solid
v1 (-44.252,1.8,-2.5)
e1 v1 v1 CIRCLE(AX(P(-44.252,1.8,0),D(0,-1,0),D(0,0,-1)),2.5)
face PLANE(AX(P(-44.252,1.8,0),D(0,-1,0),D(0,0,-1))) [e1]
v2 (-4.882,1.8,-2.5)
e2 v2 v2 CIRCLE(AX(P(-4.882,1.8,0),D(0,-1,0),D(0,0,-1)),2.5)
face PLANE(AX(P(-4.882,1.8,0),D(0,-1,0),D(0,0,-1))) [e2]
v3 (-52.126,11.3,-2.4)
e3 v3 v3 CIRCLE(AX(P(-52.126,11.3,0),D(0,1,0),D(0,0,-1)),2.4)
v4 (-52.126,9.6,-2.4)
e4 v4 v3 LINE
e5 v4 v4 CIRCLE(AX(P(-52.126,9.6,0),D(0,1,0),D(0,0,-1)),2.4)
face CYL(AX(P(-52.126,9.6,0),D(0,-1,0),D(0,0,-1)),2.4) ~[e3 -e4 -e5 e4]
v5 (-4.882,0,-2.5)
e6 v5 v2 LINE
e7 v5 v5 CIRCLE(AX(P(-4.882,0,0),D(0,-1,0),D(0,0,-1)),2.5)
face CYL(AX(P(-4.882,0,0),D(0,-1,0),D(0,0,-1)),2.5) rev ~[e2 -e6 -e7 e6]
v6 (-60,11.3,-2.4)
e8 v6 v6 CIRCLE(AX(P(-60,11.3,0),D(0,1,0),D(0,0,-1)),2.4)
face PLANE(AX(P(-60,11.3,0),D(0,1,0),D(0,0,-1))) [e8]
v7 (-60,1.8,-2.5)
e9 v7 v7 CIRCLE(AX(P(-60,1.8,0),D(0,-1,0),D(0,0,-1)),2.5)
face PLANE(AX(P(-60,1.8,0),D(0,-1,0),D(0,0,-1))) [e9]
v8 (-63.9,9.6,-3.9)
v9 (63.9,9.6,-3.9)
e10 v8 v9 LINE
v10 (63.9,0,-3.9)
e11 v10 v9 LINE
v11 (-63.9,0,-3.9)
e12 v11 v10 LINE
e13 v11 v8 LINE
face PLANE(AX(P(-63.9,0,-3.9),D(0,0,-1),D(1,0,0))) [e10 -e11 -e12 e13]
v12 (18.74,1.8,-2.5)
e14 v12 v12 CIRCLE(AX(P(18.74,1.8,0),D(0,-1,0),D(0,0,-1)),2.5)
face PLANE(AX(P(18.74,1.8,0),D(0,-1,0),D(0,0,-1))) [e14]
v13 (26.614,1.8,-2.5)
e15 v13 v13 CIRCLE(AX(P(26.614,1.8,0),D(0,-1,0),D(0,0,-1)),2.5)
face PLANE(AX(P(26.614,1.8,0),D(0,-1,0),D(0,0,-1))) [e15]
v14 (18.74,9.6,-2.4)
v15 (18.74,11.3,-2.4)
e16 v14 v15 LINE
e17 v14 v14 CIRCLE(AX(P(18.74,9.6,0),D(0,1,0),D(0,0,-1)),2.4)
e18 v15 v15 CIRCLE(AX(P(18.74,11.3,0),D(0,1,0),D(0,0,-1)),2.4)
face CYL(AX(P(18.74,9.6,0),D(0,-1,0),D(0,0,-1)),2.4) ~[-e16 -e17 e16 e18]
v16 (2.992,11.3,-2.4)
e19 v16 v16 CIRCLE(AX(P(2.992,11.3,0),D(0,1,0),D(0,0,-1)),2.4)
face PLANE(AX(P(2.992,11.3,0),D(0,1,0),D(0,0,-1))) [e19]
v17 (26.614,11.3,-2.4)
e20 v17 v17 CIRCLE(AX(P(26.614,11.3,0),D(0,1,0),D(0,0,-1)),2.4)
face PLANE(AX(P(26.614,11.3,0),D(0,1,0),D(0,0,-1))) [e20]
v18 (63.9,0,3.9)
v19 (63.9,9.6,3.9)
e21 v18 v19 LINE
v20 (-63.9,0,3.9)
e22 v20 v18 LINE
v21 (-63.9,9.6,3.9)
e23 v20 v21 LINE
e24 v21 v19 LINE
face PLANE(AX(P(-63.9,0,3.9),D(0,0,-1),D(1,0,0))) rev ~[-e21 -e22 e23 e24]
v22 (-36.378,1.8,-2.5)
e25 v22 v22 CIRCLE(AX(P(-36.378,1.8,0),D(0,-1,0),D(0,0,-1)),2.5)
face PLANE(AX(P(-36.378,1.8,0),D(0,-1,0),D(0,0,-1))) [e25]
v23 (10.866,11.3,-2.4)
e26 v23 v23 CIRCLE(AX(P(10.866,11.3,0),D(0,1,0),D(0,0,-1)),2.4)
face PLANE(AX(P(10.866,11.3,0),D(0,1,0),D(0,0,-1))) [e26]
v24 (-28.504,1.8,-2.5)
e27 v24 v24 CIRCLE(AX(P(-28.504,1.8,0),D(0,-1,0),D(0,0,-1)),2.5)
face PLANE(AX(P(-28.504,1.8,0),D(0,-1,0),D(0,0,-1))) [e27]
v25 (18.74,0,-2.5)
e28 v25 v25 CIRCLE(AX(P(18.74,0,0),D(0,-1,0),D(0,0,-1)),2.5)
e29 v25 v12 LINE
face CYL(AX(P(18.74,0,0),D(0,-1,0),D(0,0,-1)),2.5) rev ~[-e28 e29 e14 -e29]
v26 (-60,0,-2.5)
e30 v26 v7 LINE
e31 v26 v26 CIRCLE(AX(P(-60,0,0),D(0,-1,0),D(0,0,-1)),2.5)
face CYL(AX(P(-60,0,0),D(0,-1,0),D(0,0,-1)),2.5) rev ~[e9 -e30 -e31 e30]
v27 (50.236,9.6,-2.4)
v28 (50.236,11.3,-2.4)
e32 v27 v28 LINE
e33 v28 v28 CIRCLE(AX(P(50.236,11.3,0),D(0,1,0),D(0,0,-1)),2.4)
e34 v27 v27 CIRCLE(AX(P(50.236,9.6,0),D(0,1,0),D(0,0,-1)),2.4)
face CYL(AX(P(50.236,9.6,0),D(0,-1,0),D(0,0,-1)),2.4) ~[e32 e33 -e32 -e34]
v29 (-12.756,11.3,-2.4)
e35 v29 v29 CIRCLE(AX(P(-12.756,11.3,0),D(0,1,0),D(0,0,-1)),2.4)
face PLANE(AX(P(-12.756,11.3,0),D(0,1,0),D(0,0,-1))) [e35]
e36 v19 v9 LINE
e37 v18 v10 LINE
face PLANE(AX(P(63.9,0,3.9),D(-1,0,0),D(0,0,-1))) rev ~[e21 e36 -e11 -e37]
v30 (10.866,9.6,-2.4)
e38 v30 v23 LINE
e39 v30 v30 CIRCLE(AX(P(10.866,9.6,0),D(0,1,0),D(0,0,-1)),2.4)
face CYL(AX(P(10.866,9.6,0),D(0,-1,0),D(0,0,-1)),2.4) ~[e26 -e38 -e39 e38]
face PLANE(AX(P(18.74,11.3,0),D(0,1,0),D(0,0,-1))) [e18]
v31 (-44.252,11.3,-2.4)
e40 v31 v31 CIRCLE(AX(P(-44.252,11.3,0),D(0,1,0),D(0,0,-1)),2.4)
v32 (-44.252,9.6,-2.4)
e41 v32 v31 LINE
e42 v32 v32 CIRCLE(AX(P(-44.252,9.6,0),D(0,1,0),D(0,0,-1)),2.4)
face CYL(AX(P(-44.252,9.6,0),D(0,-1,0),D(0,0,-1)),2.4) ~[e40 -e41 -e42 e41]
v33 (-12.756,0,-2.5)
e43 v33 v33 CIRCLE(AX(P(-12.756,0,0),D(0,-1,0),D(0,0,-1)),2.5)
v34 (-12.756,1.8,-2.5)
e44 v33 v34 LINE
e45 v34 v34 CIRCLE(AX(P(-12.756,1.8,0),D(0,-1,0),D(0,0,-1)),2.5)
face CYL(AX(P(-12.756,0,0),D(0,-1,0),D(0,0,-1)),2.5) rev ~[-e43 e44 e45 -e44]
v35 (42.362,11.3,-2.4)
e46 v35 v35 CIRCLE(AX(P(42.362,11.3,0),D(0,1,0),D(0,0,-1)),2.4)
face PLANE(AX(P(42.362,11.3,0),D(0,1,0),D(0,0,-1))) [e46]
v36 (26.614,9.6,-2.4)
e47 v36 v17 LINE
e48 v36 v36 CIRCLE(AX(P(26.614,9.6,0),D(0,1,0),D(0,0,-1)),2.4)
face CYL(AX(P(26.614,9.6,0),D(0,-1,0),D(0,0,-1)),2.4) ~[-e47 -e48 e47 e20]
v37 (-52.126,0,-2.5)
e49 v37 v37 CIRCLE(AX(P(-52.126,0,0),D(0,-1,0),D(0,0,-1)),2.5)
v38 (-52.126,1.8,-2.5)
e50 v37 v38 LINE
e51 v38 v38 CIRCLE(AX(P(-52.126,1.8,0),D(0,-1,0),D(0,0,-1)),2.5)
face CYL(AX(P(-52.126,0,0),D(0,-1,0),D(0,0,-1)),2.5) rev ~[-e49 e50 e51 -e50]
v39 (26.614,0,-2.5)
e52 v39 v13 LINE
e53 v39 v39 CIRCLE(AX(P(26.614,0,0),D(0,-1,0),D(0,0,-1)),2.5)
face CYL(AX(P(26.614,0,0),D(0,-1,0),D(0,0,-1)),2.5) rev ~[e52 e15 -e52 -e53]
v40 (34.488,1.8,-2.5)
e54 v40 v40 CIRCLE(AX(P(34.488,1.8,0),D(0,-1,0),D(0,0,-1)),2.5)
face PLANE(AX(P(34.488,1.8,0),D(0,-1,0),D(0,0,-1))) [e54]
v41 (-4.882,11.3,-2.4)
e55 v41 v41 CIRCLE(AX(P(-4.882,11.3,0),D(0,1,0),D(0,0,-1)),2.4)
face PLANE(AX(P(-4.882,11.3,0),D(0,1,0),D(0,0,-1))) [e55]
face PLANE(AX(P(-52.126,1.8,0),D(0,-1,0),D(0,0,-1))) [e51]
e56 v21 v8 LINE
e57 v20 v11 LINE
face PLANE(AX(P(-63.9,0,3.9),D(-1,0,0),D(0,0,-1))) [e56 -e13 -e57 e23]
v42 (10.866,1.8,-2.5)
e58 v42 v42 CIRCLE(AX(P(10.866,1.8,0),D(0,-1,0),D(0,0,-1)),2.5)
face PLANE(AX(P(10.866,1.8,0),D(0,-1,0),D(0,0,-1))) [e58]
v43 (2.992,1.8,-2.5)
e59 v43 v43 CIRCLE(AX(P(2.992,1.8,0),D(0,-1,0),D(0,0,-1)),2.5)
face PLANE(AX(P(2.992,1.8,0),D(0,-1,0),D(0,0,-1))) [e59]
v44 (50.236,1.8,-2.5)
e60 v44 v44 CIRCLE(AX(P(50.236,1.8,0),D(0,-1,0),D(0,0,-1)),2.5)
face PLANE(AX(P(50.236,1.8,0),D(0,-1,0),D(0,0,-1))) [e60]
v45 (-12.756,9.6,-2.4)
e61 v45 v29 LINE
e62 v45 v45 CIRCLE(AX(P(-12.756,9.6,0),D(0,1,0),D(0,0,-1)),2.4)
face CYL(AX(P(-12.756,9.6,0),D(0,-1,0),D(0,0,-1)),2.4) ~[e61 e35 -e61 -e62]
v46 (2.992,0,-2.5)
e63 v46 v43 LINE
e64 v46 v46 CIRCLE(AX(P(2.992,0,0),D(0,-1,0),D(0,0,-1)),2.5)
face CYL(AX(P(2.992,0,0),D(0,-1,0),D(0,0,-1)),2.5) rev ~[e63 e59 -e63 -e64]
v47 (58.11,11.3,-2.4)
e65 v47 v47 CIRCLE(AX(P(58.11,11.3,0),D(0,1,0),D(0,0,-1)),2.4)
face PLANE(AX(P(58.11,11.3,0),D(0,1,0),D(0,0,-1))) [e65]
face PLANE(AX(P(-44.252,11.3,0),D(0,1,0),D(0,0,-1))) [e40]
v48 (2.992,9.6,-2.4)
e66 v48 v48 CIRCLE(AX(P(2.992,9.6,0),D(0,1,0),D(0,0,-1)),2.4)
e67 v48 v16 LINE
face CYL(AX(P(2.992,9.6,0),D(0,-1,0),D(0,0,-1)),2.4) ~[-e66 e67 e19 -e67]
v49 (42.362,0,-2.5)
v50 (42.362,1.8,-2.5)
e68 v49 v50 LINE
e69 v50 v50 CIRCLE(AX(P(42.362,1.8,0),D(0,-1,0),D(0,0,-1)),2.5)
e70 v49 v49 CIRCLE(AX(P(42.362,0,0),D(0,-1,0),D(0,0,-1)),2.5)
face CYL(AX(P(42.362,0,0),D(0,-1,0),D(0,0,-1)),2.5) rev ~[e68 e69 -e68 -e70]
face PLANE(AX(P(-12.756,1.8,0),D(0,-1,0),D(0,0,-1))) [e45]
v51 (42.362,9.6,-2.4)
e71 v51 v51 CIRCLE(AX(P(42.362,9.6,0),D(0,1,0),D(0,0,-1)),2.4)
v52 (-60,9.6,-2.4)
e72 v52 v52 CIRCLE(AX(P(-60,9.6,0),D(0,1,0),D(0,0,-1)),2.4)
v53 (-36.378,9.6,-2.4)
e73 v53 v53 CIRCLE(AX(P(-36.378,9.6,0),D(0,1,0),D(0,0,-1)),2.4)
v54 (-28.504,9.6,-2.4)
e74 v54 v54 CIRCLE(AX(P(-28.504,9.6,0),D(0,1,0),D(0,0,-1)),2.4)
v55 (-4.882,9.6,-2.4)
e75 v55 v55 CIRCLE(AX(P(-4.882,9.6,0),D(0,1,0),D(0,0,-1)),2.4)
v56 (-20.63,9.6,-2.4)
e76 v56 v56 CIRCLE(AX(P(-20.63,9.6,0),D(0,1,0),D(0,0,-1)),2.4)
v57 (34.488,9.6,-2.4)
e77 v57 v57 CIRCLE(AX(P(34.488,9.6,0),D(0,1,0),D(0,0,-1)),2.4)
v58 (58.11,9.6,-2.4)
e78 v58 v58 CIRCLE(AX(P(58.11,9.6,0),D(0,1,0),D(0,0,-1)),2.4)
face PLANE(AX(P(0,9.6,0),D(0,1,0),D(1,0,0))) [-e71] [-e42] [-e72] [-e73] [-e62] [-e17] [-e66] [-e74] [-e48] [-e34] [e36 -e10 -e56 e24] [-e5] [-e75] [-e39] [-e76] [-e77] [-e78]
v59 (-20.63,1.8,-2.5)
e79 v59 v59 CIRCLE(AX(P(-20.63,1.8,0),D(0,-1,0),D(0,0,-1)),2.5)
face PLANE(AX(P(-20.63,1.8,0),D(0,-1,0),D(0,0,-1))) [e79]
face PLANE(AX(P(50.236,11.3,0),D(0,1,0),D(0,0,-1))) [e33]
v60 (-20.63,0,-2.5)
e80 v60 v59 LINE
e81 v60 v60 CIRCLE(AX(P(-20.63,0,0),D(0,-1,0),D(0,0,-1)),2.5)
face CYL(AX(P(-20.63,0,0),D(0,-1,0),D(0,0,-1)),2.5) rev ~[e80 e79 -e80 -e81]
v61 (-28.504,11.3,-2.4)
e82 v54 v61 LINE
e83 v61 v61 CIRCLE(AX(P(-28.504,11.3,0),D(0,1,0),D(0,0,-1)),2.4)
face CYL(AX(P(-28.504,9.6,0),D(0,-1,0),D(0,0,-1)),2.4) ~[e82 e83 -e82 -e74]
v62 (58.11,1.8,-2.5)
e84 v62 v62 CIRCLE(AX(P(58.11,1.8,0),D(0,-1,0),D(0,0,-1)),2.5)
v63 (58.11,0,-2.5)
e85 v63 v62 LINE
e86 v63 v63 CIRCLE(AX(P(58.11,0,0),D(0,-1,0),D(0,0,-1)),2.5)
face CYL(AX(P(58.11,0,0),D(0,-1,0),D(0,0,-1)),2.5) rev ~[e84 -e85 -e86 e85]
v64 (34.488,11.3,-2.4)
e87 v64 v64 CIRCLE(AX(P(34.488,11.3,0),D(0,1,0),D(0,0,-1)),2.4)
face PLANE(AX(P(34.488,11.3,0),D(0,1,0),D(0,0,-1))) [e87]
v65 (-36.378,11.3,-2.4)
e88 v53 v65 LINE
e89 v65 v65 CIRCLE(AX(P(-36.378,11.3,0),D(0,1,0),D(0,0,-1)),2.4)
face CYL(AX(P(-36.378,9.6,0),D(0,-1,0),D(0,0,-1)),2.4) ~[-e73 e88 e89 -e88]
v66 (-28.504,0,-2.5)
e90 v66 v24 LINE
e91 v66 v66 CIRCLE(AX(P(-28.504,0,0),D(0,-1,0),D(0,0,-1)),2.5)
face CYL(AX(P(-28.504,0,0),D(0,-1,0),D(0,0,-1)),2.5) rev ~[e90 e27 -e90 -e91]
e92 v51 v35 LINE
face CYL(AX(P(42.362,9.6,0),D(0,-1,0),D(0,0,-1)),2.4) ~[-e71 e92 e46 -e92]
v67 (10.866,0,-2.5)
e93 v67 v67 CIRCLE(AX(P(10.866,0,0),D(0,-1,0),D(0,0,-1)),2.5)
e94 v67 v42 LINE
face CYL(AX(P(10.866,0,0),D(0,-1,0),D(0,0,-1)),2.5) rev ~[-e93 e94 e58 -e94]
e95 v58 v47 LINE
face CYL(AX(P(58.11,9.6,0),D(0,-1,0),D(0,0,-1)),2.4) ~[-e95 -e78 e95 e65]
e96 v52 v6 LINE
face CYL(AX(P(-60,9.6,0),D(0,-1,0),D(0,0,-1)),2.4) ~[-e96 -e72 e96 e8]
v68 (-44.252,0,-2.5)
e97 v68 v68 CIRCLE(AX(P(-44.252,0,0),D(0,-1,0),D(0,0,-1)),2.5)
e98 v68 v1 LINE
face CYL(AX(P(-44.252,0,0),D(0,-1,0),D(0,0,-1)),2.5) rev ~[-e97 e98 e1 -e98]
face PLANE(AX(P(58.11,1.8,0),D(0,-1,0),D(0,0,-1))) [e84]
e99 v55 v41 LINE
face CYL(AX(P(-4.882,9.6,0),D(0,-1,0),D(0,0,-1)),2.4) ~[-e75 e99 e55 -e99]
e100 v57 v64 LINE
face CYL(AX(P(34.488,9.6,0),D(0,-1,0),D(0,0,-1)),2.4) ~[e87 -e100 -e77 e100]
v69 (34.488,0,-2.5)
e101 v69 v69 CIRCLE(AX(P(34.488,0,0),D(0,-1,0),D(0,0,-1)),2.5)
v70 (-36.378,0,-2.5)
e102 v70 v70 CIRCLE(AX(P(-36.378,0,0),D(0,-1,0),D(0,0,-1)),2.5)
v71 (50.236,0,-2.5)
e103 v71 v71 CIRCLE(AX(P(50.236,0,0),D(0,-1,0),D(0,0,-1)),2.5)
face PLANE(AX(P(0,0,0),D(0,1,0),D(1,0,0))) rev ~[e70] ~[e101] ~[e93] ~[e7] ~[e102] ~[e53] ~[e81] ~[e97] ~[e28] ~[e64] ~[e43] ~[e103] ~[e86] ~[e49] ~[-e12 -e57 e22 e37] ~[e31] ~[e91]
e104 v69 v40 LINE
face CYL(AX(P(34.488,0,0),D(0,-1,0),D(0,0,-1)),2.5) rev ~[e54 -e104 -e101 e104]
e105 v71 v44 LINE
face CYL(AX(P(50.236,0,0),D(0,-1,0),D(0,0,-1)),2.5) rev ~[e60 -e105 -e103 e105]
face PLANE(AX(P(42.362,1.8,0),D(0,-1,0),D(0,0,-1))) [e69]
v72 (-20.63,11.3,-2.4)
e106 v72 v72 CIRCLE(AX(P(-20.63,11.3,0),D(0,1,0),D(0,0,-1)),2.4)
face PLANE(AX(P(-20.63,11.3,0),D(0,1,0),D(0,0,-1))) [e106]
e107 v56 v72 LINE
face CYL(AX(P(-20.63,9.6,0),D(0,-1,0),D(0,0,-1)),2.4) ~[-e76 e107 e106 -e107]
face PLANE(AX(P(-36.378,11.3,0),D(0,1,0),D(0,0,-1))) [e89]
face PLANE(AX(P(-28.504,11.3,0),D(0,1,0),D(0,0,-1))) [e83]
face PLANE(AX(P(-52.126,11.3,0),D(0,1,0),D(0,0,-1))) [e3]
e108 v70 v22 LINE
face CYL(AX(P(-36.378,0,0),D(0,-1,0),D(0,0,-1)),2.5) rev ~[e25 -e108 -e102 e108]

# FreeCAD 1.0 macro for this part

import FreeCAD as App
import Part
import Sketcher

V = App.Vector

doc = App.newDocument("Part")
body = doc.addObject("PartDesign::Body", "Body")

# Sketch on XZ plane
sketch1 = doc.addObject("Sketcher::SketchObject", "Sketch")
body.addObject(sketch1)
sketch1.AttachmentSupport = (doc.XZ_Plane, [""])
sketch1.MapMode = "FlatFace"
sketch1.addGeometry([
    Part.LineSegment(V(-63.9, -3.9, 0), V(-63.9, 3.9, 0)),
    Part.LineSegment(V(-63.9, 3.9, 0), V(63.9, 3.9, 0)),
    Part.LineSegment(V(63.9, 3.9, 0), V(63.9, -3.9, 0)),
    Part.LineSegment(V(63.9, -3.9, 0), V(-63.9, -3.9, 0)),
], False)
sketch1.addConstraint([
    Sketcher.Constraint("Coincident", 0, 2, 1, 1),
    Sketcher.Constraint("Coincident", 1, 2, 2, 1),
    Sketcher.Constraint("Coincident", 2, 2, 3, 1),
    Sketcher.Constraint("Coincident", 3, 2, 0, 1),
    Sketcher.Constraint("Vertical", 0),
    Sketcher.Constraint("Horizontal", 1),
    Sketcher.Constraint("Vertical", 2),
    Sketcher.Constraint("Horizontal", 3),
    Sketcher.Constraint("Symmetric", 0, 2, 2, 2, -1, 1),
    Sketcher.Constraint("DistanceX", 1, 1, 1, 2, 127.8),
    Sketcher.Constraint("DistanceY", 0, 1, 0, 2, 7.8),
])
pad1 = doc.addObject("PartDesign::Pad", "Pad")
body.addObject(pad1)
pad1.Profile = sketch1
pad1.Length = 9.6
pad1.Reversed = True

# Sketch on XZ plane
sketch2 = doc.addObject("Sketcher::SketchObject", "Sketch001")
body.addObject(sketch2)
sketch2.AttachmentSupport = (doc.XZ_Plane, [""])
sketch2.MapMode = "FlatFace"
sketch2.AttachmentOffset = App.Placement(V(0, 0, -9.6), App.Rotation())
sketch2.addGeometry([
    Part.Circle(V(-60, 0, 0), V(0, 0, 1), 2.4),  # 0
    Part.Circle(V(-52.126, 0, 0), V(0, 0, 1), 2.4),  # 1
    Part.Circle(V(-44.252, 0, 0), V(0, 0, 1), 2.4),  # 2
    Part.Circle(V(-36.378, 0, 0), V(0, 0, 1), 2.4),  # 3
    Part.Circle(V(-28.504, 0, 0), V(0, 0, 1), 2.4),  # 4
    Part.Circle(V(-20.63, 0, 0), V(0, 0, 1), 2.4),  # 5
    Part.Circle(V(-12.756, 0, 0), V(0, 0, 1), 2.4),  # 6
    Part.Circle(V(-4.882, 0, 0), V(0, 0, 1), 2.4),  # 7
    Part.Circle(V(2.992, 0, 0), V(0, 0, 1), 2.4),  # 8
    Part.Circle(V(10.866, 0, 0), V(0, 0, 1), 2.4),  # 9
    Part.Circle(V(18.74, 0, 0), V(0, 0, 1), 2.4),  # 10
    Part.Circle(V(26.614, 0, 0), V(0, 0, 1), 2.4),  # 11
    Part.Circle(V(34.488, 0, 0), V(0, 0, 1), 2.4),  # 12
    Part.Circle(V(42.362, 0, 0), V(0, 0, 1), 2.4),  # 13
    Part.Circle(V(50.236, 0, 0), V(0, 0, 1), 2.4),  # 14
    Part.Circle(V(58.11, 0, 0), V(0, 0, 1), 2.4),  # 15
], False)
sketch2.addConstraint([
    Sketcher.Constraint("Equal", 0, 1),
    Sketcher.Constraint("Equal", 1, 2),
    Sketcher.Constraint("Equal", 2, 3),
    Sketcher.Constraint("Equal", 3, 4),
    Sketcher.Constraint("Equal", 4, 5),
    Sketcher.Constraint("Equal", 5, 6),
    Sketcher.Constraint("Equal", 6, 7),
    Sketcher.Constraint("Equal", 7, 8),
    Sketcher.Constraint("Equal", 8, 9),
    Sketcher.Constraint("Equal", 9, 10),
    Sketcher.Constraint("Equal", 10, 11),
    Sketcher.Constraint("Equal", 11, 12),
    Sketcher.Constraint("Equal", 12, 13),
    Sketcher.Constraint("Equal", 13, 14),
    Sketcher.Constraint("Equal", 14, 15),
    Sketcher.Constraint("PointOnObject", 0, 3, -1),
    Sketcher.Constraint("PointOnObject", 1, 3, -1),
    Sketcher.Constraint("PointOnObject", 2, 3, -1),
    Sketcher.Constraint("PointOnObject", 3, 3, -1),
    Sketcher.Constraint("PointOnObject", 4, 3, -1),
    Sketcher.Constraint("PointOnObject", 5, 3, -1),
    Sketcher.Constraint("PointOnObject", 6, 3, -1),
    Sketcher.Constraint("PointOnObject", 7, 3, -1),
    Sketcher.Constraint("PointOnObject", 8, 3, -1),
    Sketcher.Constraint("PointOnObject", 9, 3, -1),
    Sketcher.Constraint("PointOnObject", 10, 3, -1),
    Sketcher.Constraint("PointOnObject", 11, 3, -1),
    Sketcher.Constraint("PointOnObject", 12, 3, -1),
    Sketcher.Constraint("PointOnObject", 13, 3, -1),
    Sketcher.Constraint("PointOnObject", 14, 3, -1),
    Sketcher.Constraint("PointOnObject", 15, 3, -1),
    Sketcher.Constraint("Diameter", 0, 4.8),
    Sketcher.Constraint("DistanceX", 0, 3, -1, 1, 60.0),
    Sketcher.Constraint("DistanceX", 5, 3, -1, 1, 20.63),
    Sketcher.Constraint("DistanceX", -1, 1, 10, 3, 18.74),
    Sketcher.Constraint("DistanceX", -1, 1, 15, 3, 58.11),
    Sketcher.Constraint("DistanceX", 1, 3, 6, 3, 39.37),
    Sketcher.Constraint("DistanceX", 2, 3, 7, 3, 39.37),
    Sketcher.Constraint("DistanceX", 3, 3, 8, 3, 39.37),
    Sketcher.Constraint("DistanceX", 4, 3, 9, 3, 39.37),
    Sketcher.Constraint("DistanceX", 6, 3, 11, 3, 39.37),
    Sketcher.Constraint("DistanceX", 7, 3, 12, 3, 39.37),
    Sketcher.Constraint("DistanceX", 8, 3, 13, 3, 39.37),
    Sketcher.Constraint("DistanceX", 9, 3, 14, 3, 39.37),
    Sketcher.Constraint("DistanceX", 1, 3, -1, 1, 52.126),
    Sketcher.Constraint("DistanceX", 2, 3, -1, 1, 44.252),
    Sketcher.Constraint("DistanceX", 3, 3, -1, 1, 36.378),
    Sketcher.Constraint("DistanceX", 4, 3, -1, 1, 28.504),
])
pad2 = doc.addObject("PartDesign::Pad", "Pad001")
body.addObject(pad2)
pad2.Profile = sketch2
pad2.Length = 1.7
pad2.Reversed = True

# Sketch on XZ plane
sketch3 = doc.addObject("Sketcher::SketchObject", "Sketch002")
body.addObject(sketch3)
sketch3.AttachmentSupport = (doc.XZ_Plane, [""])
sketch3.MapMode = "FlatFace"
sketch3.addGeometry([
    Part.Circle(V(-60, 0, 0), V(0, 0, 1), 2.5),  # 0
    Part.Circle(V(-52.126, 0, 0), V(0, 0, 1), 2.5),  # 1
    Part.Circle(V(-44.252, 0, 0), V(0, 0, 1), 2.5),  # 2
    Part.Circle(V(-36.378, 0, 0), V(0, 0, 1), 2.5),  # 3
    Part.Circle(V(-28.504, 0, 0), V(0, 0, 1), 2.5),  # 4
    Part.Circle(V(-20.63, 0, 0), V(0, 0, 1), 2.5),  # 5
    Part.Circle(V(-12.756, 0, 0), V(0, 0, 1), 2.5),  # 6
    Part.Circle(V(-4.882, 0, 0), V(0, 0, 1), 2.5),  # 7
    Part.Circle(V(2.992, 0, 0), V(0, 0, 1), 2.5),  # 8
    Part.Circle(V(10.866, 0, 0), V(0, 0, 1), 2.5),  # 9
    Part.Circle(V(18.74, 0, 0), V(0, 0, 1), 2.5),  # 10
    Part.Circle(V(26.614, 0, 0), V(0, 0, 1), 2.5),  # 11
    Part.Circle(V(34.488, 0, 0), V(0, 0, 1), 2.5),  # 12
    Part.Circle(V(42.362, 0, 0), V(0, 0, 1), 2.5),  # 13
    Part.Circle(V(50.236, 0, 0), V(0, 0, 1), 2.5),  # 14
    Part.Circle(V(58.11, 0, 0), V(0, 0, 1), 2.5),  # 15
], False)
sketch3.addConstraint([
    Sketcher.Constraint("Equal", 0, 1),
    Sketcher.Constraint("Equal", 1, 2),
    Sketcher.Constraint("Equal", 2, 3),
    Sketcher.Constraint("Equal", 3, 4),
    Sketcher.Constraint("Equal", 4, 5),
    Sketcher.Constraint("Equal", 5, 6),
    Sketcher.Constraint("Equal", 6, 7),
    Sketcher.Constraint("Equal", 7, 8),
    Sketcher.Constraint("Equal", 8, 9),
    Sketcher.Constraint("Equal", 9, 10),
    Sketcher.Constraint("Equal", 10, 11),
    Sketcher.Constraint("Equal", 11, 12),
    Sketcher.Constraint("Equal", 12, 13),
    Sketcher.Constraint("Equal", 13, 14),
    Sketcher.Constraint("Equal", 14, 15),
    Sketcher.Constraint("PointOnObject", 0, 3, -1),
    Sketcher.Constraint("PointOnObject", 1, 3, -1),
    Sketcher.Constraint("PointOnObject", 2, 3, -1),
    Sketcher.Constraint("PointOnObject", 3, 3, -1),
    Sketcher.Constraint("PointOnObject", 4, 3, -1),
    Sketcher.Constraint("PointOnObject", 5, 3, -1),
    Sketcher.Constraint("PointOnObject", 6, 3, -1),
    Sketcher.Constraint("PointOnObject", 7, 3, -1),
    Sketcher.Constraint("PointOnObject", 8, 3, -1),
    Sketcher.Constraint("PointOnObject", 9, 3, -1),
    Sketcher.Constraint("PointOnObject", 10, 3, -1),
    Sketcher.Constraint("PointOnObject", 11, 3, -1),
    Sketcher.Constraint("PointOnObject", 12, 3, -1),
    Sketcher.Constraint("PointOnObject", 13, 3, -1),
    Sketcher.Constraint("PointOnObject", 14, 3, -1),
    Sketcher.Constraint("PointOnObject", 15, 3, -1),
    Sketcher.Constraint("Diameter", 0, 5.0),
    Sketcher.Constraint("DistanceX", 0, 3, -1, 1, 60.0),
    Sketcher.Constraint("DistanceX", 5, 3, -1, 1, 20.63),
    Sketcher.Constraint("DistanceX", -1, 1, 10, 3, 18.74),
    Sketcher.Constraint("DistanceX", -1, 1, 15, 3, 58.11),
    Sketcher.Constraint("DistanceX", 1, 3, 6, 3, 39.37),
    Sketcher.Constraint("DistanceX", 2, 3, 7, 3, 39.37),
    Sketcher.Constraint("DistanceX", 3, 3, 8, 3, 39.37),
    Sketcher.Constraint("DistanceX", 4, 3, 9, 3, 39.37),
    Sketcher.Constraint("DistanceX", 6, 3, 11, 3, 39.37),
    Sketcher.Constraint("DistanceX", 7, 3, 12, 3, 39.37),
    Sketcher.Constraint("DistanceX", 8, 3, 13, 3, 39.37),
    Sketcher.Constraint("DistanceX", 9, 3, 14, 3, 39.37),
    Sketcher.Constraint("DistanceX", 1, 3, -1, 1, 52.126),
    Sketcher.Constraint("DistanceX", 2, 3, -1, 1, 44.252),
    Sketcher.Constraint("DistanceX", 3, 3, -1, 1, 36.378),
    Sketcher.Constraint("DistanceX", 4, 3, -1, 1, 28.504),
])
pocket1 = doc.addObject("PartDesign::Pocket", "Pocket")
body.addObject(pocket1)
pocket1.Profile = sketch3
pocket1.Length = 1.8

doc.recompute()
